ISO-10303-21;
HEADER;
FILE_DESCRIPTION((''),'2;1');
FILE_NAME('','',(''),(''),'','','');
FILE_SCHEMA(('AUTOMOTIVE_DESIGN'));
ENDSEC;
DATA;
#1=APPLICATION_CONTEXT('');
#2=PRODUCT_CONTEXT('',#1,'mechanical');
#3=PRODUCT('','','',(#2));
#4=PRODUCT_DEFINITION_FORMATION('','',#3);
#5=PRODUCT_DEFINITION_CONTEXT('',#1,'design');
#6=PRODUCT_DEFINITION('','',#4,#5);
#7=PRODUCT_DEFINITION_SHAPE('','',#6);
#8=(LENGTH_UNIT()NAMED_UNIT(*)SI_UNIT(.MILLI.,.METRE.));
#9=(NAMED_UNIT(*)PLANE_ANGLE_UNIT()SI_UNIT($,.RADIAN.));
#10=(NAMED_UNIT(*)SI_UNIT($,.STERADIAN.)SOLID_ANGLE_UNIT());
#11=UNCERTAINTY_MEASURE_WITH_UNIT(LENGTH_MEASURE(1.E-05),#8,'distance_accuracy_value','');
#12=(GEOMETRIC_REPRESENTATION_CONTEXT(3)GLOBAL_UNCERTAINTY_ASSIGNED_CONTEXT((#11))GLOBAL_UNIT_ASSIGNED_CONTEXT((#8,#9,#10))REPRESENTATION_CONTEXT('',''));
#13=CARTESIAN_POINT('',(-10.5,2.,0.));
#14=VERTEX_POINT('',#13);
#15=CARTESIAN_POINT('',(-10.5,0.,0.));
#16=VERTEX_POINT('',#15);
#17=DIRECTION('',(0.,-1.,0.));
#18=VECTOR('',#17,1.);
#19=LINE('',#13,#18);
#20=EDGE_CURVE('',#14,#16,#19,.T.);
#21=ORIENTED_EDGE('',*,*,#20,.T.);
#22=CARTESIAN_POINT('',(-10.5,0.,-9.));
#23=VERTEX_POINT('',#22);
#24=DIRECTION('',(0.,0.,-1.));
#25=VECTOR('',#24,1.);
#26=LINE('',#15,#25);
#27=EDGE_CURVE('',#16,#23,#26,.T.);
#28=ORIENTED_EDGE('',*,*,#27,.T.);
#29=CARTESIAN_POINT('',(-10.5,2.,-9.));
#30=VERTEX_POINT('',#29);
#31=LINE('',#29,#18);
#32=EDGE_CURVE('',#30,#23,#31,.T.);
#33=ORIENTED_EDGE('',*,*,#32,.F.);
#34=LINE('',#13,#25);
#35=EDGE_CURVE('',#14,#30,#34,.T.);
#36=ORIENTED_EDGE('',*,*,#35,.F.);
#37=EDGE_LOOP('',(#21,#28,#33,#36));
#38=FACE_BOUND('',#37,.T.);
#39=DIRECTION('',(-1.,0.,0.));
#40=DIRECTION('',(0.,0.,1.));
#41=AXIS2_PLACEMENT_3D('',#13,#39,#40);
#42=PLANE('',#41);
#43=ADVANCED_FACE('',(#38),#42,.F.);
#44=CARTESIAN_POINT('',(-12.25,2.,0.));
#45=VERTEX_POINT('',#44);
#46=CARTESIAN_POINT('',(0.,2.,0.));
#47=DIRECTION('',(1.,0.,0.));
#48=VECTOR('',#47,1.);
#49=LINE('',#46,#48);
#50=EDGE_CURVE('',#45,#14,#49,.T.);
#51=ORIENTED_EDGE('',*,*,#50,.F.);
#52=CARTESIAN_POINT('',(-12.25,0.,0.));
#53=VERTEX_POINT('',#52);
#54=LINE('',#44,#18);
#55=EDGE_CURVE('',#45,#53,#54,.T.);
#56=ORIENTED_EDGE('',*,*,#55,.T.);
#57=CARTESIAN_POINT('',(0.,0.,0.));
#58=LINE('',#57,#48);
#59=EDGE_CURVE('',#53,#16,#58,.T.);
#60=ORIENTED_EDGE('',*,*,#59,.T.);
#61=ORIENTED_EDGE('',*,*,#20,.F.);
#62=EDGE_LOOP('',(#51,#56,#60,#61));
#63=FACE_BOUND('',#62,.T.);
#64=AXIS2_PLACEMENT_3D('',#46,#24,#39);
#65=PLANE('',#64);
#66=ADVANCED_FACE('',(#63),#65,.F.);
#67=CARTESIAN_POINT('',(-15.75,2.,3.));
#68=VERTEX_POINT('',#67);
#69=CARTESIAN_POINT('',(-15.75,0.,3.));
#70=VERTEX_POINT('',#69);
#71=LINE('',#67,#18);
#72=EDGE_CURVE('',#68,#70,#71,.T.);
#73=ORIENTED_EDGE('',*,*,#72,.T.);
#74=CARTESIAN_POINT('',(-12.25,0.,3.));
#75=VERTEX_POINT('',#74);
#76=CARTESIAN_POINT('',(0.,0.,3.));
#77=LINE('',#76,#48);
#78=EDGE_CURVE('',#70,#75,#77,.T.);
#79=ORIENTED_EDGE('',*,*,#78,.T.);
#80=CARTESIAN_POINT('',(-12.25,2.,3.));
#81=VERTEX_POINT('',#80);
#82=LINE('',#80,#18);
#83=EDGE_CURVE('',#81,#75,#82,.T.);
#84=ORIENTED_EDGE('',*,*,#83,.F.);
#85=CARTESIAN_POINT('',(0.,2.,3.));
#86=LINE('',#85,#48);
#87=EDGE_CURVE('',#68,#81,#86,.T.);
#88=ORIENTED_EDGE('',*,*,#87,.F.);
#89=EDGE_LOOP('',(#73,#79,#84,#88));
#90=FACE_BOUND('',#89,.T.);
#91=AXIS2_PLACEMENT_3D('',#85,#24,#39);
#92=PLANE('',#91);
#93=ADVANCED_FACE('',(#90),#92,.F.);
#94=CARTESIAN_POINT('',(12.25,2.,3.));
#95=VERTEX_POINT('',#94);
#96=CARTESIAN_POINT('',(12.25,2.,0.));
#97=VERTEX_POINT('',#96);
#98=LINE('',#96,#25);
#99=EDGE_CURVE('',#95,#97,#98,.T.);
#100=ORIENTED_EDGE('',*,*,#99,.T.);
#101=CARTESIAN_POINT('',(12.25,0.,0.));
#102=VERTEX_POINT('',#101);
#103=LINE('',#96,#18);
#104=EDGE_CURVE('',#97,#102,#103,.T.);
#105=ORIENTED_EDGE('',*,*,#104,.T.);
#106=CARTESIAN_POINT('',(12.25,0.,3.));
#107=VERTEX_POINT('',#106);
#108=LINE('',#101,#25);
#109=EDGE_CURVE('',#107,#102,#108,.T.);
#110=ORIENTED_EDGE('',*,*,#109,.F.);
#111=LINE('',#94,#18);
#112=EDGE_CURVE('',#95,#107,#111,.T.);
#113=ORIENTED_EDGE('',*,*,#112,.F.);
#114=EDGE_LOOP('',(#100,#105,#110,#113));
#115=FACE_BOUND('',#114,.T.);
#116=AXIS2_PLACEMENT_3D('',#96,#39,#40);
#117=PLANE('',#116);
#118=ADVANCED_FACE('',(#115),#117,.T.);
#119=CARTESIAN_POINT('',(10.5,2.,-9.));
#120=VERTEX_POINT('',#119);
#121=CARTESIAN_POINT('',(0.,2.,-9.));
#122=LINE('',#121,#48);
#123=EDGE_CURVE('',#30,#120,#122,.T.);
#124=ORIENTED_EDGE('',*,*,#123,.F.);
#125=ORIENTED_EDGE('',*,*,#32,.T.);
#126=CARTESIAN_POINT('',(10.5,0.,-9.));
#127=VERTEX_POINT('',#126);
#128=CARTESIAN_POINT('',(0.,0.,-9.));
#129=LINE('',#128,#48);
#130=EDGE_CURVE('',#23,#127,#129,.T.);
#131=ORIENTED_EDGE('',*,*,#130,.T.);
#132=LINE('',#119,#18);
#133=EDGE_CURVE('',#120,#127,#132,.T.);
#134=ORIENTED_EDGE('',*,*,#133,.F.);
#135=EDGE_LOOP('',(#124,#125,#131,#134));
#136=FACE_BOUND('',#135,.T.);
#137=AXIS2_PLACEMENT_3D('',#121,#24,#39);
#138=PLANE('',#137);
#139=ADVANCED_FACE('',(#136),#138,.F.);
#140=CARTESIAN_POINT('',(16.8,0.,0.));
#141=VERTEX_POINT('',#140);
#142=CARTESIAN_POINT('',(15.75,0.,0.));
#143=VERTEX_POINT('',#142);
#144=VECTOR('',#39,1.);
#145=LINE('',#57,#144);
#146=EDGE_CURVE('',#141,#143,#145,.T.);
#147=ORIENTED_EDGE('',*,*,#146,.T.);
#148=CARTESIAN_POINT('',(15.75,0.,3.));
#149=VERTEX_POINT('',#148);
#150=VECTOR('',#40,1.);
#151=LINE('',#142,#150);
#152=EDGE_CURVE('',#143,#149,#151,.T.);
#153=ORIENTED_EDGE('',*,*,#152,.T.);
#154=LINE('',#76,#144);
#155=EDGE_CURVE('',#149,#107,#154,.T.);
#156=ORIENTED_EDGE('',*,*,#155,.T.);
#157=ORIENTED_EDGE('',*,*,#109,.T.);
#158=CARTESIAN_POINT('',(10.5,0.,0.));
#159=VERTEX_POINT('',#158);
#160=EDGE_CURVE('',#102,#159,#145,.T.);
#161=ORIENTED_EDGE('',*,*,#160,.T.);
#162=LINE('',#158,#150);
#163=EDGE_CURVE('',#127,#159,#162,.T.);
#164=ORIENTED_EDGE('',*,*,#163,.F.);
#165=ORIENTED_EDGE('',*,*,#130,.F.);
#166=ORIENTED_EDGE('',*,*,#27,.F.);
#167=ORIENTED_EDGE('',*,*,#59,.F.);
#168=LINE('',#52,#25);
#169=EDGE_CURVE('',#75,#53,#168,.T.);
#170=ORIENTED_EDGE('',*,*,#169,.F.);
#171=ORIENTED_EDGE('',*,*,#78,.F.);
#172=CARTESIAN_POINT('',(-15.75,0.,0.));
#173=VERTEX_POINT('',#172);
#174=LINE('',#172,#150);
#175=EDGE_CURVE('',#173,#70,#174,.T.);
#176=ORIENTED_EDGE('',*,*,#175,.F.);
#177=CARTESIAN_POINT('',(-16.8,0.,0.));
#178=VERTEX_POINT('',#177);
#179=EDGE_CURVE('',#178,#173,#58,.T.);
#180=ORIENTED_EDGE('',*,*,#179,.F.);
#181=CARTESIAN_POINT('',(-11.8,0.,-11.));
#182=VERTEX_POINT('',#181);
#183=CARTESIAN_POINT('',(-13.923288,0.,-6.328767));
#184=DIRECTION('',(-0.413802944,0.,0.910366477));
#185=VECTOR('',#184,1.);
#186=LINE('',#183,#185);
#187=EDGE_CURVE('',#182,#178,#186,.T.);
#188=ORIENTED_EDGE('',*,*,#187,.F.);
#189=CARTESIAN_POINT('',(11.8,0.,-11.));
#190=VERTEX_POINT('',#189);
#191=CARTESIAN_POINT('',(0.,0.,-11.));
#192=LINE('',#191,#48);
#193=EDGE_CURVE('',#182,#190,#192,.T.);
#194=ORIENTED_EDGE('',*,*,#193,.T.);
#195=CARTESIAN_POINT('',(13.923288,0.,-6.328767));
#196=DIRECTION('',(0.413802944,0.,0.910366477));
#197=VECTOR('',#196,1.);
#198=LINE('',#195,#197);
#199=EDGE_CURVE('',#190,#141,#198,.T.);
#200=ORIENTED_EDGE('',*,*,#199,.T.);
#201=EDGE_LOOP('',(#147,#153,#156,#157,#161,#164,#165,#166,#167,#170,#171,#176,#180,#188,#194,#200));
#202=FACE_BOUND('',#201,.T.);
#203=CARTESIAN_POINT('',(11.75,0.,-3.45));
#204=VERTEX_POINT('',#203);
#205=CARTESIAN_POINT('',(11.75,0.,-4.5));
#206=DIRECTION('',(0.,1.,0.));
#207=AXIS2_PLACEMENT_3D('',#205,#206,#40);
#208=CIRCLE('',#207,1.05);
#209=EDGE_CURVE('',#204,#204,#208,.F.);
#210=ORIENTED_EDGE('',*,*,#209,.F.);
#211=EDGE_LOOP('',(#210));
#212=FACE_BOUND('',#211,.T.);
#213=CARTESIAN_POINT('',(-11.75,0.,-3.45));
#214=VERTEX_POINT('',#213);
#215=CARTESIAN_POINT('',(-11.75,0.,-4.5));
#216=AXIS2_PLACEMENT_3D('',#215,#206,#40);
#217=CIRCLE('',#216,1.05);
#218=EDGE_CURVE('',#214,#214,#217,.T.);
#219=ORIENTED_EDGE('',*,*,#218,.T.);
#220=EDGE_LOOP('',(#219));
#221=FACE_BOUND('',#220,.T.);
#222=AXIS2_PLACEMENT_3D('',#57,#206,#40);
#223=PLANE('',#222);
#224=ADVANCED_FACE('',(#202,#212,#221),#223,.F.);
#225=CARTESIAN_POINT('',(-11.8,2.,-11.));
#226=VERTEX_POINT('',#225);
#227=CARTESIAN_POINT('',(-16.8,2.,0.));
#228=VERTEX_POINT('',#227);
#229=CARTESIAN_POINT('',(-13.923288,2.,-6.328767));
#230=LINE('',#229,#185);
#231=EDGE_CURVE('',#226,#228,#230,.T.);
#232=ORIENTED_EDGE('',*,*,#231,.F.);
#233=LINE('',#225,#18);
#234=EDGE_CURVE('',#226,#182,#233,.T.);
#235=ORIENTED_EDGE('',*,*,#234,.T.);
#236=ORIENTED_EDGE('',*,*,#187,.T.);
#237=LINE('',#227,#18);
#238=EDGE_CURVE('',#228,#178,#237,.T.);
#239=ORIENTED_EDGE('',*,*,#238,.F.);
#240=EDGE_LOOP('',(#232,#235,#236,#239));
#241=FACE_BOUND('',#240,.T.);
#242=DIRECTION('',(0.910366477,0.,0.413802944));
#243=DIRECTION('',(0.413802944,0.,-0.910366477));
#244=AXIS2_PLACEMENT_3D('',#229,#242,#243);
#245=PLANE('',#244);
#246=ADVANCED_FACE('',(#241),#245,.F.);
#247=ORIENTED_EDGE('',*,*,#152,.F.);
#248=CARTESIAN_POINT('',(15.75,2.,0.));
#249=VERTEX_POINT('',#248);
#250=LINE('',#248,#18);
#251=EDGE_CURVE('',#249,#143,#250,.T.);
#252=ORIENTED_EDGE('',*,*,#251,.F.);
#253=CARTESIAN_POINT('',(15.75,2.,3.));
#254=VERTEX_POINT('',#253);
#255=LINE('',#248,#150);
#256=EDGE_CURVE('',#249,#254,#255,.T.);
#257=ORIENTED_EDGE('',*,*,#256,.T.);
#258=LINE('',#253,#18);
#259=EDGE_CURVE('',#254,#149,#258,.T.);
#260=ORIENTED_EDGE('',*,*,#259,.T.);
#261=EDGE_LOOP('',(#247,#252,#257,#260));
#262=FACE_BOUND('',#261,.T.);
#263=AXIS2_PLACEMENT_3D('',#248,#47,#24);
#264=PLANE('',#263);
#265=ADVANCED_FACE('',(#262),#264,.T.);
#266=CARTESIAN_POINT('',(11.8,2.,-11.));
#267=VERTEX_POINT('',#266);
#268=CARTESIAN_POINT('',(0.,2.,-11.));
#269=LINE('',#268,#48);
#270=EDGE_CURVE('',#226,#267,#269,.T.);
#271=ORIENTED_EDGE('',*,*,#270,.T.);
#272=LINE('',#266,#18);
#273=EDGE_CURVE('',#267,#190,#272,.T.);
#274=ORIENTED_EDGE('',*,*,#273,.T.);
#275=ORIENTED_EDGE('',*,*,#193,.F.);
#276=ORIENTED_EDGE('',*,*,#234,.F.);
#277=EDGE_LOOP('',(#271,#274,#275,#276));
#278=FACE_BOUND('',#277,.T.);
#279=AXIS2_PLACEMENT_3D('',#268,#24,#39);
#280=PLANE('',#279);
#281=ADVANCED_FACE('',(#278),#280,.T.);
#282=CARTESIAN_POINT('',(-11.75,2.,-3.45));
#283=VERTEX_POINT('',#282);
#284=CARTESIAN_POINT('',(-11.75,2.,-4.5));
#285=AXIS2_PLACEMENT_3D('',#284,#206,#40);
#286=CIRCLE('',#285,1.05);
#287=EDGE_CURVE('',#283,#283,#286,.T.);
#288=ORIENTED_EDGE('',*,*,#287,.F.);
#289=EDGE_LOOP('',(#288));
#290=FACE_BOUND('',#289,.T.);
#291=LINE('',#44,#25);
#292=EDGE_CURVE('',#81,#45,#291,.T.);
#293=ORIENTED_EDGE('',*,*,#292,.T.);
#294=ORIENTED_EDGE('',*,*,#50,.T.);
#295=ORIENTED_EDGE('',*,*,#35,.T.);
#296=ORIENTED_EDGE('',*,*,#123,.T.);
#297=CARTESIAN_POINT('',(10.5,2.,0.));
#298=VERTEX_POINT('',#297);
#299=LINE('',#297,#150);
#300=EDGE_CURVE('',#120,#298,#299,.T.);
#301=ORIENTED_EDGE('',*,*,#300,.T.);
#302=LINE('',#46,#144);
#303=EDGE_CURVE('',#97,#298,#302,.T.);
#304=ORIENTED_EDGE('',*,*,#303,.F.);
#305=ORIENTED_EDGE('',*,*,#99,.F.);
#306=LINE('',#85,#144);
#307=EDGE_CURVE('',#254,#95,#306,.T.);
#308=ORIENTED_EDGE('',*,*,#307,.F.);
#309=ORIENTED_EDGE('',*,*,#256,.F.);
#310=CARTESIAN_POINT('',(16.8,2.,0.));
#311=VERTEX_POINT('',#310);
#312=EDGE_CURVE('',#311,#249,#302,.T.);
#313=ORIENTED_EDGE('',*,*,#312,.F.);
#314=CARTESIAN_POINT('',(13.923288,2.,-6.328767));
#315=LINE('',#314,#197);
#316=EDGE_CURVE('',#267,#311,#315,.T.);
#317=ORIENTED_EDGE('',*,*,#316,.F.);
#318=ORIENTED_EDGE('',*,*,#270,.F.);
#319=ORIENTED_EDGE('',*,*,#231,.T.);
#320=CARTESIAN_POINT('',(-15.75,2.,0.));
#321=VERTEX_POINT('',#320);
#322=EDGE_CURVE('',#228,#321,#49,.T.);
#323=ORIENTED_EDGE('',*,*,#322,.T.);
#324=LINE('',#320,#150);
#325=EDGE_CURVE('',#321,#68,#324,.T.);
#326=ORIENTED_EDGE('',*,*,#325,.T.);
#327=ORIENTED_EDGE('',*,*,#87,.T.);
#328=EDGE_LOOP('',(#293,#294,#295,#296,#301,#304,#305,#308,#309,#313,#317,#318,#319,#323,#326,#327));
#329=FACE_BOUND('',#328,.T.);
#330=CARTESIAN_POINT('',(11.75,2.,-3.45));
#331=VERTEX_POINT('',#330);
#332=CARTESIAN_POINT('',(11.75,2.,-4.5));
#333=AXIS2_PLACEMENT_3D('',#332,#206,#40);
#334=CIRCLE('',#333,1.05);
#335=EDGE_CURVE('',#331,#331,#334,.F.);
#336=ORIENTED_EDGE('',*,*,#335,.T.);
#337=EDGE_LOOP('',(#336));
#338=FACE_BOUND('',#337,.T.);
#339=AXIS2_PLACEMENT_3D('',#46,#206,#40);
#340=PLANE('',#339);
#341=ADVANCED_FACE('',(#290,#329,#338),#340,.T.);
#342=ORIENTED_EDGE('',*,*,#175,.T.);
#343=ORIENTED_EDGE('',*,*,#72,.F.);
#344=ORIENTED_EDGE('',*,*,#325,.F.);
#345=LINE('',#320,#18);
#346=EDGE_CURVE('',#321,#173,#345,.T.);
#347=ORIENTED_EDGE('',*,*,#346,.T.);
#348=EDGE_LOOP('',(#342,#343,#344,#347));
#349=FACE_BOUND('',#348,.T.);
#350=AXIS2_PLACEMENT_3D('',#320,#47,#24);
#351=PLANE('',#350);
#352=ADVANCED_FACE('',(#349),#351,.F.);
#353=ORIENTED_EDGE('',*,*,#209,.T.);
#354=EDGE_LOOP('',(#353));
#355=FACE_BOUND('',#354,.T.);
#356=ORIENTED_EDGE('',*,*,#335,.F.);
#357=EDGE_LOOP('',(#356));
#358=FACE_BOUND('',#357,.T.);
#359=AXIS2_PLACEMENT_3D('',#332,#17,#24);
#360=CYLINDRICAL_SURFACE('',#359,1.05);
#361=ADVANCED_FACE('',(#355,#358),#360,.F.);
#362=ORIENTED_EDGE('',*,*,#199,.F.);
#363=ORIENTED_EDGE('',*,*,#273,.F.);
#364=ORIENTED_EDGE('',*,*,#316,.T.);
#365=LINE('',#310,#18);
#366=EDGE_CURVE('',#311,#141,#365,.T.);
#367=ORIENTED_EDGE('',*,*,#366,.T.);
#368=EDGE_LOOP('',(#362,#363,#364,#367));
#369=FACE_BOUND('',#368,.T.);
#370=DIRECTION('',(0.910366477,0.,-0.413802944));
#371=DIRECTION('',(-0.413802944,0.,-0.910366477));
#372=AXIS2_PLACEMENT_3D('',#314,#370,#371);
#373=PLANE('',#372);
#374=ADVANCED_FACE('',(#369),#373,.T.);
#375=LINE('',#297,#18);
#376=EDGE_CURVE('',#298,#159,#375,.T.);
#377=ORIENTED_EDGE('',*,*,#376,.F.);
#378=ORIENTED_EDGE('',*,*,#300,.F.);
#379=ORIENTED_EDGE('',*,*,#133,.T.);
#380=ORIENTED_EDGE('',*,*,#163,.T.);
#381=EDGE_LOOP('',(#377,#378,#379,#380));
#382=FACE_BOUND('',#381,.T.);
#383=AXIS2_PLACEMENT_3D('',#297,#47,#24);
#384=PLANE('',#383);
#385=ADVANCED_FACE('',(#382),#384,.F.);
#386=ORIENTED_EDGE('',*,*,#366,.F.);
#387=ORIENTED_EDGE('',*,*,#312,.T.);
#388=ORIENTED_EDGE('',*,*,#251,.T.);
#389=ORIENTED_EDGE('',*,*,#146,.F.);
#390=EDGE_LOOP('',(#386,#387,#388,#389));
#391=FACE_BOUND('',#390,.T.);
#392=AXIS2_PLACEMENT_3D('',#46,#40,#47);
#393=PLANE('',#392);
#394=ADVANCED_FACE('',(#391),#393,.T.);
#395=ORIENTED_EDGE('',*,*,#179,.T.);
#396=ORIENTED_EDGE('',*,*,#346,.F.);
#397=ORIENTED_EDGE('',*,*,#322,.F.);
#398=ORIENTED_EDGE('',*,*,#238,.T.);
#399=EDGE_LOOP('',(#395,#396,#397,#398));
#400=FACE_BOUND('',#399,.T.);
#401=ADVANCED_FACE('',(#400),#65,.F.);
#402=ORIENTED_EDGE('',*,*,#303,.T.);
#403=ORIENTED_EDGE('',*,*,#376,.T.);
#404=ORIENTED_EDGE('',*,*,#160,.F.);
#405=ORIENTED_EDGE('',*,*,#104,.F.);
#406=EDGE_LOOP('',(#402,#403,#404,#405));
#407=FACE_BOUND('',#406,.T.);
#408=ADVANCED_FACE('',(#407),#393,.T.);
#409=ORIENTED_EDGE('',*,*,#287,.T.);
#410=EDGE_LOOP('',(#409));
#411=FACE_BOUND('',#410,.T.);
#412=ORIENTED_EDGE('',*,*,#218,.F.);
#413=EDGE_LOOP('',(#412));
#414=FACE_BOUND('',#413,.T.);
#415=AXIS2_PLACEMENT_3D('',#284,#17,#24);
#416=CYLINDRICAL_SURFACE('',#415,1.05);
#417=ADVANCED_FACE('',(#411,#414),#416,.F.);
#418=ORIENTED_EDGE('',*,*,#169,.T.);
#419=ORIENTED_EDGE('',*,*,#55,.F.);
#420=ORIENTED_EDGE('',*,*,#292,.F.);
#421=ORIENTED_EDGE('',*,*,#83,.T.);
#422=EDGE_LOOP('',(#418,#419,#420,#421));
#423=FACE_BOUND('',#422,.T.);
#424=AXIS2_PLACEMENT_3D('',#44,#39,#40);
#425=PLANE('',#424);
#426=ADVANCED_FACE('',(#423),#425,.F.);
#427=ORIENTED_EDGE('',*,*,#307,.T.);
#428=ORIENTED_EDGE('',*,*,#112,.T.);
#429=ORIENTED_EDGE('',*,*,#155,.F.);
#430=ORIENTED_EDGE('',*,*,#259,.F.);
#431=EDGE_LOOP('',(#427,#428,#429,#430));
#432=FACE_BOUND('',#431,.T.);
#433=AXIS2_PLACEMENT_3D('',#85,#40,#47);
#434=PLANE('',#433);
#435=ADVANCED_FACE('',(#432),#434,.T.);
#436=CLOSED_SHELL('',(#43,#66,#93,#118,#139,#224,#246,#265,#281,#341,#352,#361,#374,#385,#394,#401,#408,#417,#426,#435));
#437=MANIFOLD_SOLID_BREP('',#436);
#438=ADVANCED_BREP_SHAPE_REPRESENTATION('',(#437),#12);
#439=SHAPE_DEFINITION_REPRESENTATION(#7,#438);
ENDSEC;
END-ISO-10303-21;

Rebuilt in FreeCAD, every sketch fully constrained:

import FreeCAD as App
import Part
import Sketcher
Q = App.Units.Quantity

doc = App.newDocument("Part")
body = doc.addObject("PartDesign::Body", "Body")

# Sketch on XZ plane
sketch1 = doc.addObject("Sketcher::SketchObject", "Sketch")
body.addObject(sketch1)
sketch1.AttachmentSupport = (doc.XZ_Plane, [""])
sketch1.MapMode = "FlatFace"
sketch1.addGeometry(Part.LineSegment(App.Vector(-10.5, 0, 0), App.Vector(-10.5, -9, 0)), False)
sketch1.addGeometry(Part.LineSegment(App.Vector(-10.5, -9, 0), App.Vector(10.5, -9, 0)), False)
sketch1.addGeometry(Part.LineSegment(App.Vector(10.5, -9, 0), App.Vector(10.5, 0, 0)), False)
sketch1.addGeometry(Part.LineSegment(App.Vector(10.5, 0, 0), App.Vector(12.25, 0, 0)), False)
sketch1.addGeometry(Part.LineSegment(App.Vector(12.25, 0, 0), App.Vector(12.25, 3, 0)), False)
sketch1.addGeometry(Part.LineSegment(App.Vector(12.25, 3, 0), App.Vector(15.75, 3, 0)), False)
sketch1.addGeometry(Part.LineSegment(App.Vector(15.75, 3, 0), App.Vector(15.75, 0, 0)), False)
sketch1.addGeometry(Part.LineSegment(App.Vector(15.75, 0, 0), App.Vector(16.8, 0, 0)), False)
sketch1.addGeometry(Part.LineSegment(App.Vector(16.8, 0, 0), App.Vector(11.8, -11, 0)), False)
sketch1.addGeometry(Part.LineSegment(App.Vector(11.8, -11, 0), App.Vector(-11.8, -11, 0)), False)
sketch1.addGeometry(Part.LineSegment(App.Vector(-11.8, -11, 0), App.Vector(-16.8, 0, 0)), False)
sketch1.addGeometry(Part.LineSegment(App.Vector(-16.8, 0, 0), App.Vector(-15.75, 0, 0)), False)
sketch1.addGeometry(Part.LineSegment(App.Vector(-15.75, 0, 0), App.Vector(-15.75, 3, 0)), False)
sketch1.addGeometry(Part.LineSegment(App.Vector(-15.75, 3, 0), App.Vector(-12.25, 3, 0)), False)
sketch1.addGeometry(Part.LineSegment(App.Vector(-12.25, 3, 0), App.Vector(-12.25, 0, 0)), False)
sketch1.addGeometry(Part.LineSegment(App.Vector(-12.25, 0, 0), App.Vector(-10.5, 0, 0)), False)
sketch1.addGeometry(Part.Circle(App.Vector(-11.75, -4.5, 0), App.Vector(0, 0, 1), 1.05), False)
sketch1.addGeometry(Part.Circle(App.Vector(11.75, -4.5, 0), App.Vector(0, 0, 1), 1.05), False)
sketch1.addConstraint(Sketcher.Constraint("Coincident", 0, 2, 1, 1))
sketch1.addConstraint(Sketcher.Constraint("Coincident", 1, 2, 2, 1))
sketch1.addConstraint(Sketcher.Constraint("Coincident", 2, 2, 3, 1))
sketch1.addConstraint(Sketcher.Constraint("Coincident", 3, 2, 4, 1))
sketch1.addConstraint(Sketcher.Constraint("Coincident", 4, 2, 5, 1))
sketch1.addConstraint(Sketcher.Constraint("Coincident", 5, 2, 6, 1))
sketch1.addConstraint(Sketcher.Constraint("Coincident", 6, 2, 7, 1))
sketch1.addConstraint(Sketcher.Constraint("Coincident", 7, 2, 8, 1))
sketch1.addConstraint(Sketcher.Constraint("Coincident", 8, 2, 9, 1))
sketch1.addConstraint(Sketcher.Constraint("Coincident", 9, 2, 10, 1))
sketch1.addConstraint(Sketcher.Constraint("Coincident", 10, 2, 11, 1))
sketch1.addConstraint(Sketcher.Constraint("Coincident", 11, 2, 12, 1))
sketch1.addConstraint(Sketcher.Constraint("Coincident", 12, 2, 13, 1))
sketch1.addConstraint(Sketcher.Constraint("Coincident", 13, 2, 14, 1))
sketch1.addConstraint(Sketcher.Constraint("Coincident", 14, 2, 15, 1))
sketch1.addConstraint(Sketcher.Constraint("Coincident", 15, 2, 0, 1))
sketch1.addConstraint(Sketcher.Constraint("Vertical", 0))
sketch1.addConstraint(Sketcher.Constraint("Horizontal", 1))
sketch1.addConstraint(Sketcher.Constraint("Vertical", 2))
sketch1.addConstraint(Sketcher.Constraint("Horizontal", 3))
sketch1.addConstraint(Sketcher.Constraint("Vertical", 4))
sketch1.addConstraint(Sketcher.Constraint("Horizontal", 5))
sketch1.addConstraint(Sketcher.Constraint("Vertical", 6))
sketch1.addConstraint(Sketcher.Constraint("Horizontal", 7))
sketch1.addConstraint(Sketcher.Constraint("Horizontal", 9))
sketch1.addConstraint(Sketcher.Constraint("Horizontal", 11))
sketch1.addConstraint(Sketcher.Constraint("Vertical", 12))
sketch1.addConstraint(Sketcher.Constraint("Horizontal", 13))
sketch1.addConstraint(Sketcher.Constraint("Vertical", 14))
sketch1.addConstraint(Sketcher.Constraint("Horizontal", 15))
sketch1.addConstraint(Sketcher.Constraint("Equal", 16, 17))
sketch1.addConstraint(Sketcher.Constraint("Symmetric", 7, 2, 10, 2, -1, 1))
sketch1.addConstraint(Sketcher.Constraint("Symmetric", 3, 2, 14, 2, -1, 1))
sketch1.addConstraint(Sketcher.Constraint("Symmetric", 16, 3, 17, 3, -2))
sketch1.addConstraint(Sketcher.Constraint("Symmetric", 6, 2, 11, 2, -2))
sketch1.addConstraint(Sketcher.Constraint("Symmetric", 2, 2, 15, 2, -2))
sketch1.addConstraint(Sketcher.Constraint("Horizontal", 5, 2, 12, 2))
sketch1.addConstraint(Sketcher.Constraint("Equal", 8, 10))
sketch1.addConstraint(Sketcher.Constraint("Diameter", 16, Q("2.1 mm")))
sketch1.addConstraint(Sketcher.Constraint("DistanceX", 1, 1, 1, 2, Q("21 mm")))
sketch1.addConstraint(Sketcher.Constraint("DistanceY", 0, 2, 0, 1, Q("9 mm")))
sketch1.addConstraint(Sketcher.Constraint("DistanceY", 4, 1, 4, 2, Q("3 mm")))
sketch1.addConstraint(Sketcher.Constraint("DistanceX", 5, 1, 5, 2, Q("3.5 mm")))
sketch1.addConstraint(Sketcher.Constraint("DistanceX", 9, 2, 9, 1, Q("23.6 mm")))
sketch1.addConstraint(Sketcher.Constraint("DistanceY", 8, 2, -1, 1, Q("11 mm")))
sketch1.addConstraint(Sketcher.Constraint("DistanceX", 16, 3, 3, 2, Q("24 mm")))
sketch1.addConstraint(Sketcher.Constraint("DistanceX", 17, 3, 5, 2, Q("4 mm")))
sketch1.addConstraint(Sketcher.Constraint("DistanceX", 10, 2, 9, 2, Q("5 mm")))
sketch1.addConstraint(Sketcher.Constraint("DistanceY", 16, 3, -1, 1, Q("4.5 mm")))
pad1 = doc.addObject("PartDesign::Pad", "Pad")
body.addObject(pad1)
pad1.Profile = sketch1
pad1.Length = 2
pad1.Reversed = True

doc.recompute()
